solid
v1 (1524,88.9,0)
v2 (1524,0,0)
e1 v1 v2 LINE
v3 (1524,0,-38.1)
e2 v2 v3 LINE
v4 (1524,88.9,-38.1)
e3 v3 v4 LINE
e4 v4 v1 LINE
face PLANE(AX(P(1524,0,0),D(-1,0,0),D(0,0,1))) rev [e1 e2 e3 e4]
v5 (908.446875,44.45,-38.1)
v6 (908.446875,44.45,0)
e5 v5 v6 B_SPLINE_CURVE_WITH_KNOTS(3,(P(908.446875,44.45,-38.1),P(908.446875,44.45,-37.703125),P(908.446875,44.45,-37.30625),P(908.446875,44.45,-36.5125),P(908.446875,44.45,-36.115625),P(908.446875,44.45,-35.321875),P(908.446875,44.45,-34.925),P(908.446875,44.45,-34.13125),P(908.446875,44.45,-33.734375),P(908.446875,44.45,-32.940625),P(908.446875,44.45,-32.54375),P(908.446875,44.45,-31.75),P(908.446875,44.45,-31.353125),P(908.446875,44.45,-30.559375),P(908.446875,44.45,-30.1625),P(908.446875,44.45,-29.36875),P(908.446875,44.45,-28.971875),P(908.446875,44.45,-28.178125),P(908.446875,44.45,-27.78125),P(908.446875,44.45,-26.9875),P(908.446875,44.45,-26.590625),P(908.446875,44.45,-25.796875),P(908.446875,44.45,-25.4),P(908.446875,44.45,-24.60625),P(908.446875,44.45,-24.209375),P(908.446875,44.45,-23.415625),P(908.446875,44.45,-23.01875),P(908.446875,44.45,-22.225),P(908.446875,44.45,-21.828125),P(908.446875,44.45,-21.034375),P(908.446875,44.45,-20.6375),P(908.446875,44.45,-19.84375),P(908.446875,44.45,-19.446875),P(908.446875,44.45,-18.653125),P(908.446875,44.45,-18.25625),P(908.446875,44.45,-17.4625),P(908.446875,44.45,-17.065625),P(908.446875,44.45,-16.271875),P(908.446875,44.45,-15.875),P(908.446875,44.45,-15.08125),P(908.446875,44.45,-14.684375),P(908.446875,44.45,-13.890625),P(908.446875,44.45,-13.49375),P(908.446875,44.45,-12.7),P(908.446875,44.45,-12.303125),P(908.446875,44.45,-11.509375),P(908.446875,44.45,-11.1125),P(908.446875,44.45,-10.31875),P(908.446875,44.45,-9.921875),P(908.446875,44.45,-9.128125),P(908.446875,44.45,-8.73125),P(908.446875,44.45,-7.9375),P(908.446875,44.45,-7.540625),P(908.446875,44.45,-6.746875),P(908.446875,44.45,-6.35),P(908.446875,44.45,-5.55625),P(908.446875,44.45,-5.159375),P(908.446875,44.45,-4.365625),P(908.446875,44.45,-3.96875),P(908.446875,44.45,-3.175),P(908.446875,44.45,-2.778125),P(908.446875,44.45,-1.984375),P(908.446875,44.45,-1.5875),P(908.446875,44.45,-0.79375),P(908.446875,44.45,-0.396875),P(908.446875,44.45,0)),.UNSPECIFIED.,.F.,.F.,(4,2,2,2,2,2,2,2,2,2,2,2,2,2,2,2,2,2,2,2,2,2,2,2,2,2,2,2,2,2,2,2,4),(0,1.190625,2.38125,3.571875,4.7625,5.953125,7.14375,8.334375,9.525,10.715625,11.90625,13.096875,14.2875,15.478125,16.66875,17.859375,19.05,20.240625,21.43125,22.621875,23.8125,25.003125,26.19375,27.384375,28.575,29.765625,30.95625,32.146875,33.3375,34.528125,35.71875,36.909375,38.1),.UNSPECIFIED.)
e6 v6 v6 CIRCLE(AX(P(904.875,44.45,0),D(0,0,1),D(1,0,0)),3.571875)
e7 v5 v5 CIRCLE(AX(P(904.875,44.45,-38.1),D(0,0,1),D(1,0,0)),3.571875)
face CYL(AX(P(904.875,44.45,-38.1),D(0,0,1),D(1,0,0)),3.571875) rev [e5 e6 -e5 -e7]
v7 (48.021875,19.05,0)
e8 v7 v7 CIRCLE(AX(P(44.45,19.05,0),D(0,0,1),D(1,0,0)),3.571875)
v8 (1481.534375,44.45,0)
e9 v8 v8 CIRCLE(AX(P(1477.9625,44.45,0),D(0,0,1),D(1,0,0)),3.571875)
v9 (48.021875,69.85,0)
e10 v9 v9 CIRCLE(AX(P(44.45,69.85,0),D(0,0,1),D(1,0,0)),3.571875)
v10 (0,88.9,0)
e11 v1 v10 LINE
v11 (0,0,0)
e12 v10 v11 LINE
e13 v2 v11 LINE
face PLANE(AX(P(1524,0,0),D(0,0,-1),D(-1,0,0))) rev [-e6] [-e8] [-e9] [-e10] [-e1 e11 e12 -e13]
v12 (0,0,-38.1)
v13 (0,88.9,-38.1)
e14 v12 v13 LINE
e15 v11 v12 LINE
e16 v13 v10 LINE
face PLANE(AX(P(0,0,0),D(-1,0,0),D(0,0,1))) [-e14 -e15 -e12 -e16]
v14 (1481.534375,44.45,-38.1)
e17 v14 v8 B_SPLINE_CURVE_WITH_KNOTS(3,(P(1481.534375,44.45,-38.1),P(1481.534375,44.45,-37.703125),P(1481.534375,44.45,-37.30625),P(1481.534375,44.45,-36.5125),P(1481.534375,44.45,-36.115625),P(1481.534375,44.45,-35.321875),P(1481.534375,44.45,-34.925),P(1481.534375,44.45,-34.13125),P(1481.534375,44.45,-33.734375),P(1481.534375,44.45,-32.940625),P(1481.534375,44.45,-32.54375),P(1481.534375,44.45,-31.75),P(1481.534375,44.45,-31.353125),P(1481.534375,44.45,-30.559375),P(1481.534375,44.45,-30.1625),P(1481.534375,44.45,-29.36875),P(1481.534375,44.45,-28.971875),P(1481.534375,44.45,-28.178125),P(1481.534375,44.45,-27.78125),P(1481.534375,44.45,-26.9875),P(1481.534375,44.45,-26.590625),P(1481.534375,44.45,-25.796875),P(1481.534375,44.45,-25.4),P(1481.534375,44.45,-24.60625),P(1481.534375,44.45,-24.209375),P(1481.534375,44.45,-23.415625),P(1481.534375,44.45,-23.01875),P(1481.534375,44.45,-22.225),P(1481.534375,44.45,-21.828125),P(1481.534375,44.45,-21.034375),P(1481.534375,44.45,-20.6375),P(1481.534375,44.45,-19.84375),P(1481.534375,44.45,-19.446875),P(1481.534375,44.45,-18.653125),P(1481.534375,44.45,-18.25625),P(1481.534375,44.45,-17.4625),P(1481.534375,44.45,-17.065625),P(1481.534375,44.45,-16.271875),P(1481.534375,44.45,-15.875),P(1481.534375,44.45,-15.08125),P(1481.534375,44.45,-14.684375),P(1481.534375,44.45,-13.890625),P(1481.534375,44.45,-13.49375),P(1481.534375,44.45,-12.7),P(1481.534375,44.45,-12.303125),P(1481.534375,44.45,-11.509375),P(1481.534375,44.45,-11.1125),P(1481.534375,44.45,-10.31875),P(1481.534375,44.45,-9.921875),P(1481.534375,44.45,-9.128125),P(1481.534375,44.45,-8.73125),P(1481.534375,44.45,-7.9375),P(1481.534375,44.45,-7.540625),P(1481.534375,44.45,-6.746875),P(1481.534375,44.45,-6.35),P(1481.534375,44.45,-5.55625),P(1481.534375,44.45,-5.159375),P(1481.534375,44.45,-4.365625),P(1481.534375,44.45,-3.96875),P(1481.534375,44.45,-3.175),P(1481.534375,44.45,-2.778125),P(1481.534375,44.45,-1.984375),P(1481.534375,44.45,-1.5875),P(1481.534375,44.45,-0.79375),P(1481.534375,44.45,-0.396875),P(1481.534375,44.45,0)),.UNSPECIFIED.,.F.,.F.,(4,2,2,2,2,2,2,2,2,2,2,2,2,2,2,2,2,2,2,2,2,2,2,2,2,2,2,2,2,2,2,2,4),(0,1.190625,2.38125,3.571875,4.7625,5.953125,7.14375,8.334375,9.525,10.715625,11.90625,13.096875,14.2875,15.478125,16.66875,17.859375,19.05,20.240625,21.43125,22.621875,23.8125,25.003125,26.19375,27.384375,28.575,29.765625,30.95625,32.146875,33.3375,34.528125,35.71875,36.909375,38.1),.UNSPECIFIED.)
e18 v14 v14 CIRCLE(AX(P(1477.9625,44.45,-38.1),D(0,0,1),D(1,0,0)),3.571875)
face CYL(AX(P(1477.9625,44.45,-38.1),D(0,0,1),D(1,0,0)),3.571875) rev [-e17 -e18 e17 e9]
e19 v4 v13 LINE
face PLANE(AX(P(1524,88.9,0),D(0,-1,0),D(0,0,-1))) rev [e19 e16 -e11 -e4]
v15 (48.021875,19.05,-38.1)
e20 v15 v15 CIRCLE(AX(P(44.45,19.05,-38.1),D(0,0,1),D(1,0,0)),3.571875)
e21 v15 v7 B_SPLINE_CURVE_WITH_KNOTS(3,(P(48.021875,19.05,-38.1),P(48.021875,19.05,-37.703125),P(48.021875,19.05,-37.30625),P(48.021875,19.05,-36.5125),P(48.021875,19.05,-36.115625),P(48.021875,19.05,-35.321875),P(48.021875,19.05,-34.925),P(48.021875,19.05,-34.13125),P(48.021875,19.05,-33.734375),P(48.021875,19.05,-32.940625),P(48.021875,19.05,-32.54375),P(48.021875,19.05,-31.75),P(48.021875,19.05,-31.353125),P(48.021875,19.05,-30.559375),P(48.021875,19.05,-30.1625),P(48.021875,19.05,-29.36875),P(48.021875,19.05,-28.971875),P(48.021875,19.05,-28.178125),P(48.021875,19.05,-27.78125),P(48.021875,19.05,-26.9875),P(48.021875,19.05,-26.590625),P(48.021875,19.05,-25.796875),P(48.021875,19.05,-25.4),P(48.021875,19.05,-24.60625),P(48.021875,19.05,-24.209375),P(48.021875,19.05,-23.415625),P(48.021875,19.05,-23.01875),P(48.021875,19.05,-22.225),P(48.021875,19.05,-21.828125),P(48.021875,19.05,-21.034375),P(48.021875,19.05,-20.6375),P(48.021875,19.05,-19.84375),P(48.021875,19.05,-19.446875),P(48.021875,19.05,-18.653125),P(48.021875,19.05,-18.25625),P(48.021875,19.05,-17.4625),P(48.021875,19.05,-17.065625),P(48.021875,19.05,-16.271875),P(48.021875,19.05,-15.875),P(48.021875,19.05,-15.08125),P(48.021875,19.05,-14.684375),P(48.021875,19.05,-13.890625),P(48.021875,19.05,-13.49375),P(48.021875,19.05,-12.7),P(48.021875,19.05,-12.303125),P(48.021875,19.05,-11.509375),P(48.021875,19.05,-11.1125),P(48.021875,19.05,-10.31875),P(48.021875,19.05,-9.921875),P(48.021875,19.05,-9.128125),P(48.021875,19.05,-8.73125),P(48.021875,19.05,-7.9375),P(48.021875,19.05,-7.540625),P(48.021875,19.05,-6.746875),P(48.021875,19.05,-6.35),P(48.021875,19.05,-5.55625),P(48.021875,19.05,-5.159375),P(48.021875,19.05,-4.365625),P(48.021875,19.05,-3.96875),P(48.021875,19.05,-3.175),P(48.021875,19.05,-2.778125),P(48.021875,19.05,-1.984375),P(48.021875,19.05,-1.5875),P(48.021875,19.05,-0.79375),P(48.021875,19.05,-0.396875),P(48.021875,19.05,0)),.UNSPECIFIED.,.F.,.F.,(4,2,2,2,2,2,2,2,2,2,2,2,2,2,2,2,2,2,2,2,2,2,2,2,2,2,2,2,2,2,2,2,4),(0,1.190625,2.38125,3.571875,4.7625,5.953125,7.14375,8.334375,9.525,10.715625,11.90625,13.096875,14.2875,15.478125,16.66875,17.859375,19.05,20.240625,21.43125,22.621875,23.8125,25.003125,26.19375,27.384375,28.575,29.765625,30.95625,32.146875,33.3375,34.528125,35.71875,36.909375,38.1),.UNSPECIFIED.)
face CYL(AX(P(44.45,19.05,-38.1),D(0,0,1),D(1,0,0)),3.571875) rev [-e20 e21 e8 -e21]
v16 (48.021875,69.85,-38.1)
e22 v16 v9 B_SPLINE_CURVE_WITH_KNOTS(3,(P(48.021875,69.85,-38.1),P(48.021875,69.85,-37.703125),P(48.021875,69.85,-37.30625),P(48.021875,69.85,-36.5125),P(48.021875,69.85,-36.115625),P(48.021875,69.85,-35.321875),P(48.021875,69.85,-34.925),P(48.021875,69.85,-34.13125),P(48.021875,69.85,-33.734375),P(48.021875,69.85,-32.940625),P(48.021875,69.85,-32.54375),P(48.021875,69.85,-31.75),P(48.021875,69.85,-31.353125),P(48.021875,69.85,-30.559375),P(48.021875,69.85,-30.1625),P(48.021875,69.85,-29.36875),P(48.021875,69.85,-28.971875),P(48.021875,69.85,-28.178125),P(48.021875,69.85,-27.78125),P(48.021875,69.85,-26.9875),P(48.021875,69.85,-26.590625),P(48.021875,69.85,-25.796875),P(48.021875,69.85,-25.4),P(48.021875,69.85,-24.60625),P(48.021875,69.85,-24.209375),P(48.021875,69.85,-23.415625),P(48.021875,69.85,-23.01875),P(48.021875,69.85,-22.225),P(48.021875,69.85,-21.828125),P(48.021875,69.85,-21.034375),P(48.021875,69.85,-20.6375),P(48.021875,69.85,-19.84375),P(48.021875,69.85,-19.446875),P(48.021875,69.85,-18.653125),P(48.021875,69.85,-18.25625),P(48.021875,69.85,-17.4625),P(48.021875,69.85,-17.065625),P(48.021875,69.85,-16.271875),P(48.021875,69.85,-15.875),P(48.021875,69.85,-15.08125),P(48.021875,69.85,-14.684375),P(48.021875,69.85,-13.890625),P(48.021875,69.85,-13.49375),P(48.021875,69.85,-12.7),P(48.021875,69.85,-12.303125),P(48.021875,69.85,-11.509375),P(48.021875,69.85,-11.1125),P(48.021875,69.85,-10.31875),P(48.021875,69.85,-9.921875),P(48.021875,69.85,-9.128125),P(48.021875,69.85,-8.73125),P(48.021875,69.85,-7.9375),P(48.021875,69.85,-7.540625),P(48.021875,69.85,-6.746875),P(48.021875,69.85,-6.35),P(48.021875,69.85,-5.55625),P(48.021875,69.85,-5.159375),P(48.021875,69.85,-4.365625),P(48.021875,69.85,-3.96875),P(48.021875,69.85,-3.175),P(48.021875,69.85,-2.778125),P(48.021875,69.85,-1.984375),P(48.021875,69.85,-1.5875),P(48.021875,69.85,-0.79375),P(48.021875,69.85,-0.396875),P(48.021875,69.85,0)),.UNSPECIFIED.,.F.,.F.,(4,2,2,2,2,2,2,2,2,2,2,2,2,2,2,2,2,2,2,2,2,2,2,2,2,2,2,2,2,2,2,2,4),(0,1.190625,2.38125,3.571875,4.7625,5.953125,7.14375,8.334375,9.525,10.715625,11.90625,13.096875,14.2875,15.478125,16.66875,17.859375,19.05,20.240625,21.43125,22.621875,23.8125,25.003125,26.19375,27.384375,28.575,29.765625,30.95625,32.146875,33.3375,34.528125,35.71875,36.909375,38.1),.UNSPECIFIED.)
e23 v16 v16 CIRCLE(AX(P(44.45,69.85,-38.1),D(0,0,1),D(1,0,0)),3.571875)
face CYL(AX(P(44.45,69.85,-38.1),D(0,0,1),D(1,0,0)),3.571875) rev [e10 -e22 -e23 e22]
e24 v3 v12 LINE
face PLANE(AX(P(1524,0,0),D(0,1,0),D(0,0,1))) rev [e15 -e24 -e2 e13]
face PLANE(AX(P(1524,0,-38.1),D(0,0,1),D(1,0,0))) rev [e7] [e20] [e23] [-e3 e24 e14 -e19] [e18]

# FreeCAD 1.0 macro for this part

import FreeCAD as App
import Part
import Sketcher
Q = App.Units.Quantity


def add_polygon(sketch, points):
    """Adds a closed chain of lines whose ends are joined by coincident constraints."""
    first, n = sketch.GeometryCount, len(points)
    for a, b in zip(points, points[1:] + points[:1]):
        sketch.addGeometry(Part.LineSegment(App.Vector(*a, 0), App.Vector(*b, 0)), False)
    for i in range(n):
        sketch.addConstraint(Sketcher.Constraint("Coincident", first + i, 2, first + (i + 1) % n, 1))

doc = App.newDocument("Part")
body = doc.addObject("PartDesign::Body", "Body")

sketch1 = doc.addObject("Sketcher::SketchObject", "Sketch")
body.addObject(sketch1)
sketch1.AttachmentSupport = (doc.YZ_Plane, [""])
sketch1.MapMode = "FlatFace"
add_polygon(sketch1, [(88.9, 0), (0, 0), (0, -38.1), (88.9, -38.1)])
sketch1.addConstraint(Sketcher.Constraint("Horizontal", 0))
sketch1.addConstraint(Sketcher.Constraint("Vertical", 1))
sketch1.addConstraint(Sketcher.Constraint("Horizontal", 2))
sketch1.addConstraint(Sketcher.Constraint("Vertical", 3))
sketch1.addConstraint(Sketcher.Constraint("Coincident", 0, 2, -1, 1))
sketch1.addConstraint(Sketcher.Constraint("DistanceX", 0, 2, 0, 1, Q("3.5 in")))
sketch1.addConstraint(Sketcher.Constraint("DistanceY", 1, 2, 1, 1, Q("1.5 in")))
pad1 = doc.addObject("PartDesign::Pad", "Pad")
body.addObject(pad1)
pad1.Profile = sketch1
pad1.Length = Q("60 in")

sketch2 = doc.addObject("Sketcher::SketchObject", "Sketch001")
body.addObject(sketch2)
sketch2.AttachmentSupport = (doc.XY_Plane, [""])
sketch2.MapMode = "FlatFace"
sketch2.addGeometry(Part.Circle(App.Vector(44.45, 19.05, 0), App.Vector(0, 0, 1), 3.571875), False)
sketch2.addGeometry(Part.Circle(App.Vector(1477.9625, 44.45, 0), App.Vector(0, 0, 1), 3.571875), False)
sketch2.addGeometry(Part.Circle(App.Vector(44.45, 69.85, 0), App.Vector(0, 0, 1), 3.571875), False)
sketch2.addGeometry(Part.Circle(App.Vector(904.875, 44.45, 0), App.Vector(0, 0, 1), 3.571875), False)
sketch2.addConstraint(Sketcher.Constraint("Equal", 0, 1))
sketch2.addConstraint(Sketcher.Constraint("Equal", 1, 2))
sketch2.addConstraint(Sketcher.Constraint("Equal", 2, 3))
sketch2.addConstraint(Sketcher.Constraint("Horizontal", 1, 3, 3, 3))
sketch2.addConstraint(Sketcher.Constraint("Vertical", 0, 3, 2, 3))
sketch2.addConstraint(Sketcher.Constraint("Diameter", 0, Q("0.28125 in")))
sketch2.addConstraint(Sketcher.Constraint("DistanceY", 0, 3, 1, 3, Q("1 in")))
sketch2.addConstraint(Sketcher.Constraint("DistanceY", 0, 3, 2, 3, Q("2 in")))
sketch2.addConstraint(Sketcher.Constraint("DistanceX", -1, 1, 0, 3, Q("1.75 in")))
sketch2.addConstraint(Sketcher.Constraint("DistanceY", -1, 1, 0, 3, Q("0.75 in")))
sketch2.addConstraint(Sketcher.Constraint("DistanceX", -1, 1, 1, 3, Q("58.1875 in")))
sketch2.addConstraint(Sketcher.Constraint("DistanceX", -1, 1, 3, 3, Q("35.625 in")))
pocket1 = doc.addObject("PartDesign::Pocket", "Pocket")
body.addObject(pocket1)
pocket1.Profile = sketch2
pocket1.Type = "ThroughAll"

doc.recompute()
